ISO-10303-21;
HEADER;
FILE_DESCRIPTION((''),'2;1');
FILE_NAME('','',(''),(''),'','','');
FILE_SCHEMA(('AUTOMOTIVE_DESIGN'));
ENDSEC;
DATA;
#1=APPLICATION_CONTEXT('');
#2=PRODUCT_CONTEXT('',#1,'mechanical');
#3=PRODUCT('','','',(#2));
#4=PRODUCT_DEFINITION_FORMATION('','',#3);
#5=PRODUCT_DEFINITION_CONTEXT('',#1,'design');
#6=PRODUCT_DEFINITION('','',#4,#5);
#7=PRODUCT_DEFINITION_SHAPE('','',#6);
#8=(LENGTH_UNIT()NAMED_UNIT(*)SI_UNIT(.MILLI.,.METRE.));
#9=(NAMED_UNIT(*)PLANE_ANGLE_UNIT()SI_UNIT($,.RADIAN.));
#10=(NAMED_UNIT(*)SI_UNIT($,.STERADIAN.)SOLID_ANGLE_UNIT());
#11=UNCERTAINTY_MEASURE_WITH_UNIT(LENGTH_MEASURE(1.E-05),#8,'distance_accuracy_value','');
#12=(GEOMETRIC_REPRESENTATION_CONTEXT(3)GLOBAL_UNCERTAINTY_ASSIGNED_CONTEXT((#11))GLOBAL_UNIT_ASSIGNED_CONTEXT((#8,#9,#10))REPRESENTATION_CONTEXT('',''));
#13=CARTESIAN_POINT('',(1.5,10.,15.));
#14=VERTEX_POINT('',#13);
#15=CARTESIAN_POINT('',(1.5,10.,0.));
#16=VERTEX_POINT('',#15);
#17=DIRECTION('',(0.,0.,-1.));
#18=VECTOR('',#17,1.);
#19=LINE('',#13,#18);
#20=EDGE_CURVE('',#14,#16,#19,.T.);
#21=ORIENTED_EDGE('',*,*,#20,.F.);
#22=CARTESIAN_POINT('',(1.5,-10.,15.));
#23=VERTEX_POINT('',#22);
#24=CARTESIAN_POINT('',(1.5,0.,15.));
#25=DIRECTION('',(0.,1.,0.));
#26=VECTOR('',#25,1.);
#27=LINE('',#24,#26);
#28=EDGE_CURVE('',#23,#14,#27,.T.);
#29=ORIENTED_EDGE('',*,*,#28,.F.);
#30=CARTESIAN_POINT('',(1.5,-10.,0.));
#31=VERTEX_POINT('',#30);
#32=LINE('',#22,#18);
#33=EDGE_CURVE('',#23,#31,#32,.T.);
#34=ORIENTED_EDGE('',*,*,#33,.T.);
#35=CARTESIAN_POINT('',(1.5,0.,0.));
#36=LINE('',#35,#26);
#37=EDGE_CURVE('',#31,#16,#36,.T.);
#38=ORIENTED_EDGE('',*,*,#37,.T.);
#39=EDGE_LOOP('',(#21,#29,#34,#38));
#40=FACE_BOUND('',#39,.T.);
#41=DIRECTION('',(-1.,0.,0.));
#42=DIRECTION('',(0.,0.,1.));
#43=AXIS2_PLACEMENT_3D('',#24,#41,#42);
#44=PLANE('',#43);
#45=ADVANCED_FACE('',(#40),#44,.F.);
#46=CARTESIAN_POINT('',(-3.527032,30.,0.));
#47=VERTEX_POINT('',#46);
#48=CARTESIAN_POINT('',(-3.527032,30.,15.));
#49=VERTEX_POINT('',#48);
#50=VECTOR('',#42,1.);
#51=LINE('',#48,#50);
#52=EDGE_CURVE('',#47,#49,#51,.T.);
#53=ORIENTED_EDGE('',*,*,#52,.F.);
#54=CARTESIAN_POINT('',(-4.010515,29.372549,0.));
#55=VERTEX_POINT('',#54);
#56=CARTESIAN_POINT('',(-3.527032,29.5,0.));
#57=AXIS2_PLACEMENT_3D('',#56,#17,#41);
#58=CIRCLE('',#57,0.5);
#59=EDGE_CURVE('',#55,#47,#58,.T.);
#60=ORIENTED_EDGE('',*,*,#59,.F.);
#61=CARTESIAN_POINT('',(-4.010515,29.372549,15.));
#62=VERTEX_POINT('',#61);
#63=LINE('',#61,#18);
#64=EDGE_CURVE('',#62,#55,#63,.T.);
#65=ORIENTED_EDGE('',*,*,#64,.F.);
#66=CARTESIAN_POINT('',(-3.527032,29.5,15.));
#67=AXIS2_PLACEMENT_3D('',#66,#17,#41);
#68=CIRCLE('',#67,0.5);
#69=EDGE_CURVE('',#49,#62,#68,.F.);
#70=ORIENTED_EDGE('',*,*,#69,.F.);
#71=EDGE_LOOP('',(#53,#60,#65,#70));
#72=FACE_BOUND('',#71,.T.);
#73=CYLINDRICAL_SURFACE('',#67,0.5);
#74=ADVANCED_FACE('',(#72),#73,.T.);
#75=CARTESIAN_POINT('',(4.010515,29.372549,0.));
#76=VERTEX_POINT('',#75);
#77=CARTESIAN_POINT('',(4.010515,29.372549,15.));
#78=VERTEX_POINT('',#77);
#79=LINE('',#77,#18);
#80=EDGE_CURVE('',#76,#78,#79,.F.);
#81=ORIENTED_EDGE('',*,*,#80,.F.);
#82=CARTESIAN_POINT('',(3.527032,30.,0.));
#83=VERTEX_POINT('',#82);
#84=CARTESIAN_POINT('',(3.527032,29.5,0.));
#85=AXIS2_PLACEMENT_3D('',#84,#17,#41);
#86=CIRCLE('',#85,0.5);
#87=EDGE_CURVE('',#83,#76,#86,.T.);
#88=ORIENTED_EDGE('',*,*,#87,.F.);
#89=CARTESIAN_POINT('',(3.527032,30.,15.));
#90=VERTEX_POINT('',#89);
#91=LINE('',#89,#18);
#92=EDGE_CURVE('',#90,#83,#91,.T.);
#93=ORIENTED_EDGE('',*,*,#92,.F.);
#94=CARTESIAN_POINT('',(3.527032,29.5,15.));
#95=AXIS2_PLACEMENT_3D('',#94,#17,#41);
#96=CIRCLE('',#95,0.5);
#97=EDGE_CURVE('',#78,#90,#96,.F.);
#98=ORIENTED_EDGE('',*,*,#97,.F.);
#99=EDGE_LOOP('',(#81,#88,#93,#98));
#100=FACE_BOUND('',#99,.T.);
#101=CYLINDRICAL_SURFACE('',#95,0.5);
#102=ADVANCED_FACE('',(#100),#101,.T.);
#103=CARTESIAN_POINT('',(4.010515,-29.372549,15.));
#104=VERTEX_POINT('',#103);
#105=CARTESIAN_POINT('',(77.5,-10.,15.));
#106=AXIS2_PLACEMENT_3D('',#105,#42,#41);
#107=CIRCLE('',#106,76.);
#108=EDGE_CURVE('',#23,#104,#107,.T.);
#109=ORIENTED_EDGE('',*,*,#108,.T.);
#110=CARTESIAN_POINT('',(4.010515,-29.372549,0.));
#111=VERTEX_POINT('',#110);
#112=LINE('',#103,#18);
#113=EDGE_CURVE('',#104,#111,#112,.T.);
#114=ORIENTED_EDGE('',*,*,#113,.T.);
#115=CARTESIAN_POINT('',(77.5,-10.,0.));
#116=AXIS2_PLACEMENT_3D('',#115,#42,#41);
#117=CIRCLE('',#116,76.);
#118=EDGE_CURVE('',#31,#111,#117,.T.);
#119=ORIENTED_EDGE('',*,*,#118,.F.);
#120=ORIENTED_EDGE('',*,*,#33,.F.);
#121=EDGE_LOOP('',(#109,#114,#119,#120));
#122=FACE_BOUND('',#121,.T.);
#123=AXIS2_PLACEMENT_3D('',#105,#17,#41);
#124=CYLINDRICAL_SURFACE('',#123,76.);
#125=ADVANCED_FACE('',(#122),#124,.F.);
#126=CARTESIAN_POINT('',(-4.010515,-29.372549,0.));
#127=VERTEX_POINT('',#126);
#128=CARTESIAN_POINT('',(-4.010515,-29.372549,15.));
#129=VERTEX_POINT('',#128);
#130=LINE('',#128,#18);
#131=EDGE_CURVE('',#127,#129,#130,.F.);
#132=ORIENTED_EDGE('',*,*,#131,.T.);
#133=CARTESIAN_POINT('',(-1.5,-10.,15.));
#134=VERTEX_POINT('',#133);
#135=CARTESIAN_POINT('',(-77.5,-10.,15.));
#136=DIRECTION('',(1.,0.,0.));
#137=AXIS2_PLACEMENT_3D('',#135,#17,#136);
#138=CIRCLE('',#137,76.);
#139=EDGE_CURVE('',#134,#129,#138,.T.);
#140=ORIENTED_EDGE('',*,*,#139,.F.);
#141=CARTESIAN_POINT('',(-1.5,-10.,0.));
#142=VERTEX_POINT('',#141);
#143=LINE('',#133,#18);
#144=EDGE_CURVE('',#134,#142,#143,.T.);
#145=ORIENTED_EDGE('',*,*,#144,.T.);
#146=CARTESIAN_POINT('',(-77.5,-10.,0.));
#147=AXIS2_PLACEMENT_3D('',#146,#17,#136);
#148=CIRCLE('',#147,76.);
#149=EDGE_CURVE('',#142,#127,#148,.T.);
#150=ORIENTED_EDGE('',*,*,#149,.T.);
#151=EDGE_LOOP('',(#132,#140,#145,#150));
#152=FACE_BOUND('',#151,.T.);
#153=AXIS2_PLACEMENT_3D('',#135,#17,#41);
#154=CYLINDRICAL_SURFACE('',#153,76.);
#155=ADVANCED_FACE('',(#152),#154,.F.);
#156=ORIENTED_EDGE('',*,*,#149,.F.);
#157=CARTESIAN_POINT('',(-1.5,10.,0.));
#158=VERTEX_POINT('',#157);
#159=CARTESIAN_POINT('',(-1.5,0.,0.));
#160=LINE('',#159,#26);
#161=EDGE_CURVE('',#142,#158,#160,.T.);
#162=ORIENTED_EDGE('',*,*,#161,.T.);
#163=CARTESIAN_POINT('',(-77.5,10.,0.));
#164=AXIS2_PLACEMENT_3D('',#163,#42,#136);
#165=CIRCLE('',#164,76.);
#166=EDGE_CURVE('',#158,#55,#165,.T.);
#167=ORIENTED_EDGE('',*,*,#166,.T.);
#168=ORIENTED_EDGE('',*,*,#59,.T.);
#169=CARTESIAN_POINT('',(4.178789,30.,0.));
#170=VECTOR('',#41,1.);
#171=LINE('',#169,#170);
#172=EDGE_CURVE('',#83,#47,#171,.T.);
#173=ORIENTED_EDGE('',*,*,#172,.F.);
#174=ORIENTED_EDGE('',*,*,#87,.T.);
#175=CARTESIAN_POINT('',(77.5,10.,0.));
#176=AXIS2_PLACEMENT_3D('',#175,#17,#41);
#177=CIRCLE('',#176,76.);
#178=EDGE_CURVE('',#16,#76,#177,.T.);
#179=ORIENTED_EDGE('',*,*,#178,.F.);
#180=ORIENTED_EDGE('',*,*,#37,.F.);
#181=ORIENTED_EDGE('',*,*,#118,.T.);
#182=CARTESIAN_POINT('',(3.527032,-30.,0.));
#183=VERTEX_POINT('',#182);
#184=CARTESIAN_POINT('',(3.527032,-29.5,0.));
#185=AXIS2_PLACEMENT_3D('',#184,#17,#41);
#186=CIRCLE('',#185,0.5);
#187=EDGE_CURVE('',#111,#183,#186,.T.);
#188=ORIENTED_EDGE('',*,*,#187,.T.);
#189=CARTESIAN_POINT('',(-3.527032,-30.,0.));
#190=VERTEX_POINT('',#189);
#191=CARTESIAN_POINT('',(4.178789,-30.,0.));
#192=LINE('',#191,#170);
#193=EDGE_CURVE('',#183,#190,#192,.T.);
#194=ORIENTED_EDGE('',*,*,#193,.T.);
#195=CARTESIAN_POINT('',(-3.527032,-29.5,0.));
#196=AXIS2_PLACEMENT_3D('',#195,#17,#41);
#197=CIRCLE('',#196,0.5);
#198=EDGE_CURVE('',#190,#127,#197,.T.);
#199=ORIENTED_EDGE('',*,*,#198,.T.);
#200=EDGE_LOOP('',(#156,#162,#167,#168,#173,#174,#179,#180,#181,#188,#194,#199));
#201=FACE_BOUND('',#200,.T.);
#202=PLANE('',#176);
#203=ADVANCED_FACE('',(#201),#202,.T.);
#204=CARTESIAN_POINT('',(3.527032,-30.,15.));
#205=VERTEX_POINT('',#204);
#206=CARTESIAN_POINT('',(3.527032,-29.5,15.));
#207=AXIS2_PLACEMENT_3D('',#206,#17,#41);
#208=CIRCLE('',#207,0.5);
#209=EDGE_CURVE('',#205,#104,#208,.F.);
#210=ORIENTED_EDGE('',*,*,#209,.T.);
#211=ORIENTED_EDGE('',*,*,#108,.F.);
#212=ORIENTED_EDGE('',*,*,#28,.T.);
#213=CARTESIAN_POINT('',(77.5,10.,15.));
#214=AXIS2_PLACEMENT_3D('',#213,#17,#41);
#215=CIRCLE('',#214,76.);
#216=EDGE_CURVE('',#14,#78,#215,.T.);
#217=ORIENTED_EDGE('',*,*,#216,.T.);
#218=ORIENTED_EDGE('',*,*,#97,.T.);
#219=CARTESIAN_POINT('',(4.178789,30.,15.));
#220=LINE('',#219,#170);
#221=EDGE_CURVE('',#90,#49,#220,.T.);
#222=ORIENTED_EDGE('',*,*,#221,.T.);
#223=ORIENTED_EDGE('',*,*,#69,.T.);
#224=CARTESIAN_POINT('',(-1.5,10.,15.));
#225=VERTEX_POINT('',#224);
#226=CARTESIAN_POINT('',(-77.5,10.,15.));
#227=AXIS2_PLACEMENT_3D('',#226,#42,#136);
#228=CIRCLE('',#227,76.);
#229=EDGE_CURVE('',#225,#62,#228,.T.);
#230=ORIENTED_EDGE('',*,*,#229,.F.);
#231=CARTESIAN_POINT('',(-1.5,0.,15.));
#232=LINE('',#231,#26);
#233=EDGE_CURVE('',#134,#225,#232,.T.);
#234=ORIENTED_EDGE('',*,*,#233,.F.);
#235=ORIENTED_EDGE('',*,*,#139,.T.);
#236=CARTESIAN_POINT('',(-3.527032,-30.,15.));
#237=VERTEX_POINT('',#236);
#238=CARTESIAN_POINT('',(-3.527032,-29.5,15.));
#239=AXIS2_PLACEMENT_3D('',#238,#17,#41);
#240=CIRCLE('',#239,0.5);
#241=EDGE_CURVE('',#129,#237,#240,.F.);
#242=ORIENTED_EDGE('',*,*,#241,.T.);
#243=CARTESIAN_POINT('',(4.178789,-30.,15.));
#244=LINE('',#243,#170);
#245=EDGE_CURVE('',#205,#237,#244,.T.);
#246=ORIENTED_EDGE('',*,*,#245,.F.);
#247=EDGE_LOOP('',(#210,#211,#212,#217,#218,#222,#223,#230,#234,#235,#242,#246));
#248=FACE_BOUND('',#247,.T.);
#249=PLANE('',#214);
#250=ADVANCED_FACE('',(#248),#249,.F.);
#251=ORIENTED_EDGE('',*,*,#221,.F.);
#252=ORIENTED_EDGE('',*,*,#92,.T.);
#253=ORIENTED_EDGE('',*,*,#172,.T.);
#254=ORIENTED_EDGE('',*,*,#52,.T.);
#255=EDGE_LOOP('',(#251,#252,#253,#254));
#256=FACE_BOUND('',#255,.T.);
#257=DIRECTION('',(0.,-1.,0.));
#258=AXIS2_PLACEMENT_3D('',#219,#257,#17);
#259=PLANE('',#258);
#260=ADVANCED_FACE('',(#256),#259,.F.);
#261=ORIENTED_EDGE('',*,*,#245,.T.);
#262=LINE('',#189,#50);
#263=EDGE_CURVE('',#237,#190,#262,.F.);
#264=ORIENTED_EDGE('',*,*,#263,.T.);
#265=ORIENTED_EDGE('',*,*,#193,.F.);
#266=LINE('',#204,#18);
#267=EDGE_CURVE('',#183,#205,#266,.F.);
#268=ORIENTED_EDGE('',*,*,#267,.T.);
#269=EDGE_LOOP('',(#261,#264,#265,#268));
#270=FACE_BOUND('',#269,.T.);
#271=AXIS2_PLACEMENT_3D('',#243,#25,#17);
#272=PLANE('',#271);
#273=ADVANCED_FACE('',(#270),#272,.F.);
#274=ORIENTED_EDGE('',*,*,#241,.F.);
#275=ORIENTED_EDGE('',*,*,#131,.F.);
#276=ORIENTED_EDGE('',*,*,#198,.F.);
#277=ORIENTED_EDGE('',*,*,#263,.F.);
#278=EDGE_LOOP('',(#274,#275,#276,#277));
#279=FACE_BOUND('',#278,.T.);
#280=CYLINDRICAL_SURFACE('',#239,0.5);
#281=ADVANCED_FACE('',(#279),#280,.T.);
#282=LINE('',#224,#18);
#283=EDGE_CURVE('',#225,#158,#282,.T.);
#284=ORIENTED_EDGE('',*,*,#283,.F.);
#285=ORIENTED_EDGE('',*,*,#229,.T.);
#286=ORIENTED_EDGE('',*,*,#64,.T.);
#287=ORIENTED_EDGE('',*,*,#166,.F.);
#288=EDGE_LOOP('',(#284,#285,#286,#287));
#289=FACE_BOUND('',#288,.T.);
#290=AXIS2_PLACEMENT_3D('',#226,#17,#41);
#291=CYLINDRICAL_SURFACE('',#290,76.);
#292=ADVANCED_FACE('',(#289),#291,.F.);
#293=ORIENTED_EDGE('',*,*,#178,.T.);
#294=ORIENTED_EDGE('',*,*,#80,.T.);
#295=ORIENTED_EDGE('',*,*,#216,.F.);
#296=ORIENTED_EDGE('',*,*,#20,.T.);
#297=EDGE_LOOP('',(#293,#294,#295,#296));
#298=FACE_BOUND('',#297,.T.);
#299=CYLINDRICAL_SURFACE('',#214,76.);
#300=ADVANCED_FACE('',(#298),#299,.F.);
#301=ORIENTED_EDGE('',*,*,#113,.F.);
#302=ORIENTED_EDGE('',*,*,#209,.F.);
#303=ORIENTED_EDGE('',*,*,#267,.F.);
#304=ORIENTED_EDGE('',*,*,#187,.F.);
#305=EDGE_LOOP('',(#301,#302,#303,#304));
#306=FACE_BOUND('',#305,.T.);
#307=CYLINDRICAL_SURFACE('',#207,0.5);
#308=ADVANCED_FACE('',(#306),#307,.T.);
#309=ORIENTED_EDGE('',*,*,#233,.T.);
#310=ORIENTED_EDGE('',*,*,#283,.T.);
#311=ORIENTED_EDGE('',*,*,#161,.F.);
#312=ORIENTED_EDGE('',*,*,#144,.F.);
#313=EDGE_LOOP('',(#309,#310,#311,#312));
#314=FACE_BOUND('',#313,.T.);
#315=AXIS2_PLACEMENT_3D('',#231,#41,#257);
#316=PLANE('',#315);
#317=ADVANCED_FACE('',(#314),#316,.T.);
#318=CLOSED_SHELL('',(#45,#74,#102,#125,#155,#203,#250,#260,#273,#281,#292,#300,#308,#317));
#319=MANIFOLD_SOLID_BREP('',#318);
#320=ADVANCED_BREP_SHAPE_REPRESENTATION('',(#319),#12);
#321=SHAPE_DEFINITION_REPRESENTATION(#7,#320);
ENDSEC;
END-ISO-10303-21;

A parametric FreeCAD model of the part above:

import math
import FreeCAD as App
import Part
import Sketcher


def edges_at(feature, points):
    """Names of the edges that pass closest to the given points."""
    edges = feature.Shape.Edges
    near = lambda p: min(range(len(edges)), key=lambda i: edges[i].distToShape(Part.Vertex(*p))[0])
    return sorted({f"Edge{near(p) + 1}" for p in points})

doc = App.newDocument("Part")
params = doc.addObject("Spreadsheet::Sheet", "Params")
for row, (alias, value) in enumerate([
    ("sketch1_radius", "76 mm"),
    ("sketch1_height", "10 mm"),
    ("sketch1_height2", "30 mm"),
    ("sketch1_width", "1.5 mm"),
    ("pad1_length", "15 mm"),
    ("fillet_radius", "0.5 mm"),
], start=1):
    params.set(f"A{row}", alias)
    params.set(f"B{row}", "=" + value)
    params.setAlias(f"B{row}", alias)

body = doc.addObject("PartDesign::Body", "Body")

# Sketch on XY plane
sketch1 = body.newObject("Sketcher::SketchObject", "Sketch")
sketch1.AttachmentSupport = (doc.getObject("XY_Plane"), [""])
sketch1.MapMode = "FlatFace"
sketch1.addGeometry([
    Part.LineSegment(App.Vector(0, 0, 0), App.Vector(1.5, 0, 0)),  # 0
    Part.LineSegment(App.Vector(1.5, 0, 0), App.Vector(1.5, 10, 0)),  # 1
    Part.ArcOfCircle(Part.Circle(App.Vector(77.5, 10, 0), App.Vector(0, 0, 1), 76), math.radians(164.74), math.radians(180)),  # 2
    Part.LineSegment(App.Vector(4.2, 30, 0), App.Vector(0, 30, 0)),  # 3
    Part.LineSegment(App.Vector(0, 30, 0), App.Vector(0, 0, 0)),  # 4
], False)
sketch1.addConstraint([
    Sketcher.Constraint("Coincident", 0, 2, 1, 1),
    Sketcher.Constraint("Tangent", 1, 2, 2, 2),
    Sketcher.Constraint("Coincident", 2, 1, 3, 1),
    Sketcher.Constraint("Coincident", 3, 2, 4, 1),
    Sketcher.Constraint("Coincident", 4, 2, 0, 1),
    Sketcher.Constraint("Horizontal", 0),
    Sketcher.Constraint("Vertical", 1),
    Sketcher.Constraint("Horizontal", 3),
    Sketcher.Constraint("Vertical", 4),
    Sketcher.Constraint("Coincident", 4, 2, -1, 1),
    Sketcher.Constraint("Radius", 2, 76.0),
    Sketcher.Constraint("DistanceY", 1, 1, 1, 2, 10.0),
    Sketcher.Constraint("DistanceY", 4, 2, 4, 1, 30.0),
    Sketcher.Constraint("DistanceX", 0, 1, 0, 2, 1.5),
])
sketch1.setExpression("Constraints[10]", "Params.sketch1_radius")
sketch1.setExpression("Constraints[11]", "Params.sketch1_height")
sketch1.setExpression("Constraints[12]", "Params.sketch1_height2")
sketch1.setExpression("Constraints[13]", "Params.sketch1_width")
pad1 = body.newObject("PartDesign::Pad", "Pad")
pad1.Profile = sketch1
pad1.setExpression("Length", "Params.pad1_length")
doc.recompute()

mirrored = body.newObject("PartDesign::Mirrored", "Mirrored")
mirrored.Originals = [pad1]
mirrored.MirrorPlane = (doc.getObject("YZ_Plane"), [""])
body.Tip = mirrored
body2 = doc.addObject("PartDesign::Body", "Body001")
doc.recompute()

body2.BaseFeature = body
doc.recompute()

mirroring = doc.addObject("Part::Mirroring", "Mirroring")
mirroring.Source = body
mirroring.Base = App.Vector(0, 0, 15)
mirroring.Normal = App.Vector(0, 1, 0)
body3 = doc.addObject("PartDesign::Body", "Body002")
body3.BaseFeature = mirroring
boolean = body2.newObject("PartDesign::Boolean", "Boolean")
boolean.Type = "Fuse"
boolean.addObjects([body3])
doc.recompute()

fillet = body2.newObject("PartDesign::Fillet", "Fillet")
fillet.Base = (boolean, edges_at(boolean, [
    (-4.179, 30, 7.5),
    (4.179, -30, 7.5),
    (-4.179, -30, 7.5),
    (4.179, 30, 7.5),
]))
fillet.setExpression("Radius", "Params.fillet_radius")
mirroring.Visibility = False

doc.recompute()
